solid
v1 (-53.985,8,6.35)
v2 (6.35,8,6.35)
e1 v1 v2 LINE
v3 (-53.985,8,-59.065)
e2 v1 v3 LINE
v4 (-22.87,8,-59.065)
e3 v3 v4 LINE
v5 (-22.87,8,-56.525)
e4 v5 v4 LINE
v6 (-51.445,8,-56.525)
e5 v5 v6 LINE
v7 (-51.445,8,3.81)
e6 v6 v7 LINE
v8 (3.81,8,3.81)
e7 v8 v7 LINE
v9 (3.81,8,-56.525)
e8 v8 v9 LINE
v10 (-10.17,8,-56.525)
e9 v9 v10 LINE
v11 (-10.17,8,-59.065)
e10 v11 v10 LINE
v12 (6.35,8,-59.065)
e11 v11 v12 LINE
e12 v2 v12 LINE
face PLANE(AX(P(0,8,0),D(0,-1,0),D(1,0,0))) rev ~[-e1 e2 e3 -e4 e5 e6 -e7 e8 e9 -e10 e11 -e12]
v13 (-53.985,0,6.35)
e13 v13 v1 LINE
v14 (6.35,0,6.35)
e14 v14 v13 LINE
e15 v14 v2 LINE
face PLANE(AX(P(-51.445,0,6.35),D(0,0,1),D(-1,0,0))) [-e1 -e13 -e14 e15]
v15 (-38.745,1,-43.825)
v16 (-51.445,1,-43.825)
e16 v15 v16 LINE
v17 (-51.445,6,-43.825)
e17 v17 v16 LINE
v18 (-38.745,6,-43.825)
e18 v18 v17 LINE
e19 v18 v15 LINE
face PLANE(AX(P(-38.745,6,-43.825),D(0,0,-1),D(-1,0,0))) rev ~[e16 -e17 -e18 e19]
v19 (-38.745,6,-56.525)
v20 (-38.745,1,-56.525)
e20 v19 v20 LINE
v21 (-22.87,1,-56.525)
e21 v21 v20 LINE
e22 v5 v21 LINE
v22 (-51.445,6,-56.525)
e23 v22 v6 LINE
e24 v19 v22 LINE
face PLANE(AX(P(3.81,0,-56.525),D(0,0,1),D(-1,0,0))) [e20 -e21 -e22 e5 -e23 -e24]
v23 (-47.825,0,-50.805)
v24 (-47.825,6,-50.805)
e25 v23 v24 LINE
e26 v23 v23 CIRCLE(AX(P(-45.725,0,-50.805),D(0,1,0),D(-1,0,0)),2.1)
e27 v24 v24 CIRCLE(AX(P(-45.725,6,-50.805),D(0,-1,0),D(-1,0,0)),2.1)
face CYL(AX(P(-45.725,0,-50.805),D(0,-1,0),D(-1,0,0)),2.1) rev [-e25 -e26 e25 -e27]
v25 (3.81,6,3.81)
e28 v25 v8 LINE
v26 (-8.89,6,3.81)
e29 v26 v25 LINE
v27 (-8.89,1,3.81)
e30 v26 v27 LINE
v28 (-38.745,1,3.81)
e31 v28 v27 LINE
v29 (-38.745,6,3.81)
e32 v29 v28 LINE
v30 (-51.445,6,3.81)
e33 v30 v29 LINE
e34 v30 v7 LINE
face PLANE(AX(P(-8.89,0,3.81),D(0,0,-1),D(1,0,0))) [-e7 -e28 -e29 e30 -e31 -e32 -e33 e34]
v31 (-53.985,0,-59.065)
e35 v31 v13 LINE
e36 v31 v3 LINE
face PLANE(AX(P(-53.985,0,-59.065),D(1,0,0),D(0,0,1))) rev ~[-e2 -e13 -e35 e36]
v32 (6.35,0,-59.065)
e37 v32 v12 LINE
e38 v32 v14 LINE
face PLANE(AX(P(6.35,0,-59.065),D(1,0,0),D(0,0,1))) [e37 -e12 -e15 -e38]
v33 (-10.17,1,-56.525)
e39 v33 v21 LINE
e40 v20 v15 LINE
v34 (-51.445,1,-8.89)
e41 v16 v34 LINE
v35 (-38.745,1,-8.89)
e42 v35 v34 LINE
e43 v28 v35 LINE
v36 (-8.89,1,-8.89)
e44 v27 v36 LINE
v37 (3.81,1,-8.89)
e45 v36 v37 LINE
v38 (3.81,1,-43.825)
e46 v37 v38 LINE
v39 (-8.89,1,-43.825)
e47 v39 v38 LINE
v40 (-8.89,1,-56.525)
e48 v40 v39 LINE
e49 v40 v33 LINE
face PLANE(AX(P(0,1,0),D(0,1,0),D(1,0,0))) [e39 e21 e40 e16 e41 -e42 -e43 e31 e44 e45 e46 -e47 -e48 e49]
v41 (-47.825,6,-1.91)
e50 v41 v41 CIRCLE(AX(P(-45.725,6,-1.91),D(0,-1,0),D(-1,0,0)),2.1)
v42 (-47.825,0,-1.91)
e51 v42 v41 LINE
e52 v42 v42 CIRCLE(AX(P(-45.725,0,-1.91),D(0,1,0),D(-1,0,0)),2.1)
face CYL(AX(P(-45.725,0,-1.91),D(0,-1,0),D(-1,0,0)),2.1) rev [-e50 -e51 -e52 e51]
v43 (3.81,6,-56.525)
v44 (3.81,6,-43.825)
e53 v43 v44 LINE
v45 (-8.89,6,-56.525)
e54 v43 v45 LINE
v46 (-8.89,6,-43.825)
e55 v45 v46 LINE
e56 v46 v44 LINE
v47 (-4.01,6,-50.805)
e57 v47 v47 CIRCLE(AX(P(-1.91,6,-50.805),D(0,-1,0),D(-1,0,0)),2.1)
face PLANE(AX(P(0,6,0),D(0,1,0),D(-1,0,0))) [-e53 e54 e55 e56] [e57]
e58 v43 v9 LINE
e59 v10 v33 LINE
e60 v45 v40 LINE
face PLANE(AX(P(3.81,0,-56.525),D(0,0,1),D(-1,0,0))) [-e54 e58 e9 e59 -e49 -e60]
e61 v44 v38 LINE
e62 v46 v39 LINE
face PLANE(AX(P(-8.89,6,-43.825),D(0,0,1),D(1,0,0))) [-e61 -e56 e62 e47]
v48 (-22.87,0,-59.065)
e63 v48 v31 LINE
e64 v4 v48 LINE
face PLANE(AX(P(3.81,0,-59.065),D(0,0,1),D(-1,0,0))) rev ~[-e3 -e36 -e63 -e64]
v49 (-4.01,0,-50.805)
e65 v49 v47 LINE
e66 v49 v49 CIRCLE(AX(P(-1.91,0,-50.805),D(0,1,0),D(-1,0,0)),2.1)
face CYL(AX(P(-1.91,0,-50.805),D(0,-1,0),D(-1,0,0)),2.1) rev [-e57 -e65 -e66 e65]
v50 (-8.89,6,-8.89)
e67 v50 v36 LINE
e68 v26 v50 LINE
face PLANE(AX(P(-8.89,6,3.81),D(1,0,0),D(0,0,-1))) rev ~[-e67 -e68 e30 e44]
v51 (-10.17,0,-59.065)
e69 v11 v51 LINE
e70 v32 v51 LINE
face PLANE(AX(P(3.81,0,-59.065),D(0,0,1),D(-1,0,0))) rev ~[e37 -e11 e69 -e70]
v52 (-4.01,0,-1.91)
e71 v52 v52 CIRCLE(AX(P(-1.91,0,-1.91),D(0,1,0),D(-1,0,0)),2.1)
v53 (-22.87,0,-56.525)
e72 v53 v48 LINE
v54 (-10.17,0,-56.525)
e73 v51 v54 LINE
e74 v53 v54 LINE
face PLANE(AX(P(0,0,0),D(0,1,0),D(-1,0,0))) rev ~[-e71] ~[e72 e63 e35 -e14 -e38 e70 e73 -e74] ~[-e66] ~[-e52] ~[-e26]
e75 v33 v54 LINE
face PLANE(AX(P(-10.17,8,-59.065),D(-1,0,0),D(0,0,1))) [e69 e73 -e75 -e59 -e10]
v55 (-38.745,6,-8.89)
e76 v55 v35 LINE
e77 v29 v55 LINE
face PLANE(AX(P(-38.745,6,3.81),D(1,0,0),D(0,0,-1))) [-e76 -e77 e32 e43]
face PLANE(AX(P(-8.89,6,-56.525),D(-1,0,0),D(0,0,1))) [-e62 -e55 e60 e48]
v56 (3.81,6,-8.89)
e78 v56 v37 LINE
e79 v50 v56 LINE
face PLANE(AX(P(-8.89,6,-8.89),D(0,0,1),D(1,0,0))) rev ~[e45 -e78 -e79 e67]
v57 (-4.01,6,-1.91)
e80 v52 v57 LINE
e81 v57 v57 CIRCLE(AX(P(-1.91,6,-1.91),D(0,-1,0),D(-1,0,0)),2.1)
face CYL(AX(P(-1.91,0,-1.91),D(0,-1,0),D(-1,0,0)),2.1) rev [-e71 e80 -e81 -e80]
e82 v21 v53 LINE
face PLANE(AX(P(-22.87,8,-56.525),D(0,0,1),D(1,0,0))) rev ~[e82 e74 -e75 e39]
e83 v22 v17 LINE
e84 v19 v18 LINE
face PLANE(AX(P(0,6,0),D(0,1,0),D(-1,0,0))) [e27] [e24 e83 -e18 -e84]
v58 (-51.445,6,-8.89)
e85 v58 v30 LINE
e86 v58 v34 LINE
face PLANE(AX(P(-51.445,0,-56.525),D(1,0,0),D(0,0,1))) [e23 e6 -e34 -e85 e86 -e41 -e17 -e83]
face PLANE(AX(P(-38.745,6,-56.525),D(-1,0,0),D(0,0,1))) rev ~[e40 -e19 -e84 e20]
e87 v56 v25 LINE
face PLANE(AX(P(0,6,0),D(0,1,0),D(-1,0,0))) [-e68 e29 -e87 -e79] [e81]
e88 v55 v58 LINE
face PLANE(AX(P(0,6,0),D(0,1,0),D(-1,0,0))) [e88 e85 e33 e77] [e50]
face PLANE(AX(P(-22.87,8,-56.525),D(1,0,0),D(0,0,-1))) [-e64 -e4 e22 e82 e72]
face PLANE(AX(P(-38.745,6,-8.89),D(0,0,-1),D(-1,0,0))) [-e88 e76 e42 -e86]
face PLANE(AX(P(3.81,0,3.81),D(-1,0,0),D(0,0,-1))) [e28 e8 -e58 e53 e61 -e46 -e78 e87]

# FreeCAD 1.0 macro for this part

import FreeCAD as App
import Part
import Sketcher

V = App.Vector

doc = App.newDocument("Part")
body = doc.addObject("PartDesign::Body", "Body")

sketch1 = body.newObject("Sketcher::SketchObject", "Sketch")
sketch1.AttachmentSupport = (doc.getObject("XZ_Plane"), [""])
sketch1.MapMode = "FlatFace"
sketch1.addGeometry(Part.LineSegment(V(3.8, 3.8, 0), V(3.8, -56.5, 0)), False)
sketch1.addGeometry(Part.LineSegment(V(3.8, -56.5, 0), V(-51.4, -56.5, 0)), False)
sketch1.addGeometry(Part.LineSegment(V(-51.4, -56.5, 0), V(-51.4, 3.8, 0)), False)
sketch1.addGeometry(Part.LineSegment(V(-51.4, 3.8, 0), V(3.8, 3.8, 0)), False)
sketch1.addGeometry(Part.Circle(V(-45.7, -1.9, 0), V(0, 0, 1), 2.1), False)
sketch1.addGeometry(Part.Circle(V(-1.9, -1.9, 0), V(0, 0, 1), 2.1), False)
sketch1.addGeometry(Part.Circle(V(-1.9, -50.8, 0), V(0, 0, 1), 2.1), False)
sketch1.addGeometry(Part.Circle(V(-45.7, -50.8, 0), V(0, 0, 1), 2.1), False)
sketch1.addConstraint(Sketcher.Constraint("Coincident", 0, 2, 1, 1))
sketch1.addConstraint(Sketcher.Constraint("Coincident", 1, 2, 2, 1))
sketch1.addConstraint(Sketcher.Constraint("Coincident", 2, 2, 3, 1))
sketch1.addConstraint(Sketcher.Constraint("Coincident", 3, 2, 0, 1))
sketch1.addConstraint(Sketcher.Constraint("Vertical", 0))
sketch1.addConstraint(Sketcher.Constraint("Horizontal", 1))
sketch1.addConstraint(Sketcher.Constraint("Vertical", 2))
sketch1.addConstraint(Sketcher.Constraint("Horizontal", 3))
sketch1.addConstraint(Sketcher.Constraint("Equal", 4, 5))
sketch1.addConstraint(Sketcher.Constraint("Equal", 5, 6))
sketch1.addConstraint(Sketcher.Constraint("Equal", 6, 7))
sketch1.addConstraint(Sketcher.Constraint("Horizontal", 4, 3, 5, 3))
sketch1.addConstraint(Sketcher.Constraint("Horizontal", 6, 3, 7, 3))
sketch1.addConstraint(Sketcher.Constraint("Vertical", 5, 3, 6, 3))
sketch1.addConstraint(Sketcher.Constraint("Vertical", 4, 3, 7, 3))
sketch1.addConstraint(Sketcher.Constraint("Diameter", 4, 4.2))
sketch1.addConstraint(Sketcher.Constraint("DistanceY", 4, 3, -1, 1, 1.91))
sketch1.addConstraint(Sketcher.Constraint("DistanceX", 5, 3, -1, 1, 1.91))
sketch1.addConstraint(Sketcher.Constraint("DistanceX", -1, 1, 0, 2, 3.81))
sketch1.addConstraint(Sketcher.Constraint("DistanceY", -1, 1, 2, 2, 3.81))
sketch1.addConstraint(Sketcher.Constraint("DistanceX", 1, 2, 1, 1, 55.255))
sketch1.addConstraint(Sketcher.Constraint("DistanceY", 0, 2, 0, 1, 60.335))
sketch1.addConstraint(Sketcher.Constraint("DistanceY", 0, 2, 6, 3, 5.72))
sketch1.addConstraint(Sketcher.Constraint("DistanceX", 1, 2, 7, 3, 5.72))
pad1 = body.newObject("PartDesign::Pad", "Pad")
pad1.Profile = sketch1
pad1.Length = 6
pad1.Reversed = True

sketch2 = body.newObject("Sketcher::SketchObject", "Sketch001")
sketch2.AttachmentSupport = (doc.getObject("XZ_Plane"), [""])
sketch2.MapMode = "FlatFace"
sketch2.AttachmentOffset = App.Placement(V(0, 0, -6), App.Rotation())
sketch2.addGeometry(Part.LineSegment(V(-39, -9, 0), V(-39, 4, 0)), False)
sketch2.addGeometry(Part.LineSegment(V(-39, 4, 0), V(-9, 4, 0)), False)
sketch2.addGeometry(Part.LineSegment(V(-9, 4, 0), V(-9, -9, 0)), False)
sketch2.addGeometry(Part.LineSegment(V(-9, -9, 0), V(4, -9, 0)), False)
sketch2.addGeometry(Part.LineSegment(V(4, -9, 0), V(4, -44, 0)), False)
sketch2.addGeometry(Part.LineSegment(V(4, -44, 0), V(-9, -44, 0)), False)
sketch2.addGeometry(Part.LineSegment(V(-9, -44, 0), V(-9, -57, 0)), False)
sketch2.addGeometry(Part.LineSegment(V(-9, -57, 0), V(-39, -57, 0)), False)
sketch2.addGeometry(Part.LineSegment(V(-39, -57, 0), V(-39, -44, 0)), False)
sketch2.addGeometry(Part.LineSegment(V(-39, -44, 0), V(-51, -44, 0)), False)
sketch2.addGeometry(Part.LineSegment(V(-51, -44, 0), V(-51, -9, 0)), False)
sketch2.addGeometry(Part.LineSegment(V(-51, -9, 0), V(-39, -9, 0)), False)
sketch2.addConstraint(Sketcher.Constraint("Coincident", 0, 2, 1, 1))
sketch2.addConstraint(Sketcher.Constraint("Coincident", 1, 2, 2, 1))
sketch2.addConstraint(Sketcher.Constraint("Coincident", 2, 2, 3, 1))
sketch2.addConstraint(Sketcher.Constraint("Coincident", 3, 2, 4, 1))
sketch2.addConstraint(Sketcher.Constraint("Coincident", 4, 2, 5, 1))
sketch2.addConstraint(Sketcher.Constraint("Coincident", 5, 2, 6, 1))
sketch2.addConstraint(Sketcher.Constraint("Coincident", 6, 2, 7, 1))
sketch2.addConstraint(Sketcher.Constraint("Coincident", 7, 2, 8, 1))
sketch2.addConstraint(Sketcher.Constraint("Coincident", 8, 2, 9, 1))
sketch2.addConstraint(Sketcher.Constraint("Coincident", 9, 2, 10, 1))
sketch2.addConstraint(Sketcher.Constraint("Coincident", 10, 2, 11, 1))
sketch2.addConstraint(Sketcher.Constraint("Coincident", 11, 2, 0, 1))
sketch2.addConstraint(Sketcher.Constraint("Vertical", 0))
sketch2.addConstraint(Sketcher.Constraint("Horizontal", 1))
sketch2.addConstraint(Sketcher.Constraint("Vertical", 2))
sketch2.addConstraint(Sketcher.Constraint("Horizontal", 3))
sketch2.addConstraint(Sketcher.Constraint("Vertical", 4))
sketch2.addConstraint(Sketcher.Constraint("Horizontal", 5))
sketch2.addConstraint(Sketcher.Constraint("Vertical", 6))
sketch2.addConstraint(Sketcher.Constraint("Horizontal", 7))
sketch2.addConstraint(Sketcher.Constraint("Vertical", 8))
sketch2.addConstraint(Sketcher.Constraint("Horizontal", 9))
sketch2.addConstraint(Sketcher.Constraint("Vertical", 10))
sketch2.addConstraint(Sketcher.Constraint("Horizontal", 11))
sketch2.addConstraint(Sketcher.Constraint("Horizontal", 5, 2, 8, 2))
sketch2.addConstraint(Sketcher.Constraint("Horizontal", 3, 2, 10, 2))
sketch2.addConstraint(Sketcher.Constraint("Vertical", 2, 2, 5, 2))
sketch2.addConstraint(Sketcher.Constraint("Vertical", 0, 2, 7, 2))
sketch2.addConstraint(Sketcher.Constraint("Equal", 5, 9))
sketch2.addConstraint(Sketcher.Constraint("Equal", 11, 0))
sketch2.addConstraint(Sketcher.Constraint("Equal", 2, 6))
sketch2.addConstraint(Sketcher.Constraint("DistanceX", 3, 1, 3, 2, 12.7))
sketch2.addConstraint(Sketcher.Constraint("DistanceX", 1, 1, 1, 2, 29.855))
sketch2.addConstraint(Sketcher.Constraint("DistanceY", 4, 2, 4, 1, 34.935))
sketch2.addConstraint(Sketcher.Constraint("DistanceY", -1, 1, 0, 2, 3.81))
sketch2.addConstraint(Sketcher.Constraint("DistanceX", 1, 2, -1, 1, 8.89))
pocket1 = body.newObject("PartDesign::Pocket", "Pocket")
pocket1.Profile = sketch2
pocket1.Length = 5
pocket1.Reversed = True

sketch3 = body.newObject("Sketcher::SketchObject", "Sketch002")
sketch3.AttachmentSupport = (doc.getObject("XZ_Plane"), [""])
sketch3.MapMode = "FlatFace"
sketch3.addGeometry(Part.LineSegment(V(-54, -59, 0), V(6, -59, 0)), False)
sketch3.addGeometry(Part.LineSegment(V(6, -59, 0), V(6, 6, 0)), False)
sketch3.addGeometry(Part.LineSegment(V(6, 6, 0), V(-54, 6, 0)), False)
sketch3.addGeometry(Part.LineSegment(V(-54, 6, 0), V(-54, -59, 0)), False)
sketch3.addGeometry(Part.LineSegment(V(4, -57, 0), V(-51, -57, 0)), False)
sketch3.addGeometry(Part.LineSegment(V(-51, -57, 0), V(-51, 4, 0)), False)
sketch3.addGeometry(Part.LineSegment(V(-51, 4, 0), V(4, 4, 0)), False)
sketch3.addGeometry(Part.LineSegment(V(4, 4, 0), V(4, -57, 0)), False)
sketch3.addConstraint(Sketcher.Constraint("Coincident", 0, 2, 1, 1))
sketch3.addConstraint(Sketcher.Constraint("Coincident", 1, 2, 2, 1))
sketch3.addConstraint(Sketcher.Constraint("Coincident", 2, 2, 3, 1))
sketch3.addConstraint(Sketcher.Constraint("Coincident", 3, 2, 0, 1))
sketch3.addConstraint(Sketcher.Constraint("Coincident", 4, 2, 5, 1))
sketch3.addConstraint(Sketcher.Constraint("Coincident", 5, 2, 6, 1))
sketch3.addConstraint(Sketcher.Constraint("Coincident", 6, 2, 7, 1))
sketch3.addConstraint(Sketcher.Constraint("Coincident", 7, 2, 4, 1))
sketch3.addConstraint(Sketcher.Constraint("Horizontal", 0))
sketch3.addConstraint(Sketcher.Constraint("Vertical", 1))
sketch3.addConstraint(Sketcher.Constraint("Horizontal", 2))
sketch3.addConstraint(Sketcher.Constraint("Vertical", 3))
sketch3.addConstraint(Sketcher.Constraint("Horizontal", 4))
sketch3.addConstraint(Sketcher.Constraint("Vertical", 5))
sketch3.addConstraint(Sketcher.Constraint("Horizontal", 6))
sketch3.addConstraint(Sketcher.Constraint("Vertical", 7))
sketch3.addConstraint(Sketcher.Constraint("Equal", 2, 5))
sketch3.addConstraint(Sketcher.Constraint("DistanceX", 3, 2, 4, 2, 2.54))
sketch3.addConstraint(Sketcher.Constraint("DistanceY", 3, 2, 4, 2, 2.54))
sketch3.addConstraint(Sketcher.Constraint("DistanceY", 5, 2, 2, 2, 2.54))
sketch3.addConstraint(Sketcher.Constraint("DistanceX", 6, 2, 1, 2, 2.54))
sketch3.addConstraint(Sketcher.Constraint("DistanceX", 0, 1, 0, 2, 60.335))
sketch3.addConstraint(Sketcher.Constraint("DistanceX", -1, 1, 0, 2, 6.35))
sketch3.addConstraint(Sketcher.Constraint("DistanceY", -1, 1, 1, 2, 6.35))
pad2 = body.newObject("PartDesign::Pad", "Pad001")
pad2.Profile = sketch3
pad2.Length = 8
pad2.Reversed = True

sketch4 = body.newObject("Sketcher::SketchObject", "Sketch003")
sketch4.AttachmentSupport = (doc.getObject("XZ_Plane"), [""])
sketch4.MapMode = "FlatFace"
sketch4.AttachmentOffset = App.Placement(V(0, 0, -8), App.Rotation())
sketch4.addGeometry(Part.LineSegment(V(-10.2, -59.1, 0), V(-22.9, -59.1, 0)), False)
sketch4.addGeometry(Part.LineSegment(V(-22.9, -59.1, 0), V(-22.9, -56.5, 0)), False)
sketch4.addGeometry(Part.LineSegment(V(-22.9, -56.5, 0), V(-10.2, -56.5, 0)), False)
sketch4.addGeometry(Part.LineSegment(V(-10.2, -56.5, 0), V(-10.2, -59.1, 0)), False)
sketch4.addConstraint(Sketcher.Constraint("Coincident", 0, 2, 1, 1))
sketch4.addConstraint(Sketcher.Constraint("Coincident", 1, 2, 2, 1))
sketch4.addConstraint(Sketcher.Constraint("Coincident", 2, 2, 3, 1))
sketch4.addConstraint(Sketcher.Constraint("Coincident", 3, 2, 0, 1))
sketch4.addConstraint(Sketcher.Constraint("Horizontal", 0))
sketch4.addConstraint(Sketcher.Constraint("Vertical", 1))
sketch4.addConstraint(Sketcher.Constraint("Horizontal", 2))
sketch4.addConstraint(Sketcher.Constraint("Vertical", 3))
sketch4.addConstraint(Sketcher.Constraint("DistanceX", 0, 2, 0, 1, 12.7))
sketch4.addConstraint(Sketcher.Constraint("DistanceY", 1, 1, 1, 2, 2.54))
sketch4.addConstraint(Sketcher.Constraint("DistanceX", 0, 2, -1, 1, 22.87))
sketch4.addConstraint(Sketcher.Constraint("DistanceY", 0, 2, -1, 1, 59.065))
pocket2 = body.newObject("PartDesign::Pocket", "Pocket001")
pocket2.Profile = sketch4
pocket2.Length = 8
pocket2.Reversed = True

doc.recompute()
